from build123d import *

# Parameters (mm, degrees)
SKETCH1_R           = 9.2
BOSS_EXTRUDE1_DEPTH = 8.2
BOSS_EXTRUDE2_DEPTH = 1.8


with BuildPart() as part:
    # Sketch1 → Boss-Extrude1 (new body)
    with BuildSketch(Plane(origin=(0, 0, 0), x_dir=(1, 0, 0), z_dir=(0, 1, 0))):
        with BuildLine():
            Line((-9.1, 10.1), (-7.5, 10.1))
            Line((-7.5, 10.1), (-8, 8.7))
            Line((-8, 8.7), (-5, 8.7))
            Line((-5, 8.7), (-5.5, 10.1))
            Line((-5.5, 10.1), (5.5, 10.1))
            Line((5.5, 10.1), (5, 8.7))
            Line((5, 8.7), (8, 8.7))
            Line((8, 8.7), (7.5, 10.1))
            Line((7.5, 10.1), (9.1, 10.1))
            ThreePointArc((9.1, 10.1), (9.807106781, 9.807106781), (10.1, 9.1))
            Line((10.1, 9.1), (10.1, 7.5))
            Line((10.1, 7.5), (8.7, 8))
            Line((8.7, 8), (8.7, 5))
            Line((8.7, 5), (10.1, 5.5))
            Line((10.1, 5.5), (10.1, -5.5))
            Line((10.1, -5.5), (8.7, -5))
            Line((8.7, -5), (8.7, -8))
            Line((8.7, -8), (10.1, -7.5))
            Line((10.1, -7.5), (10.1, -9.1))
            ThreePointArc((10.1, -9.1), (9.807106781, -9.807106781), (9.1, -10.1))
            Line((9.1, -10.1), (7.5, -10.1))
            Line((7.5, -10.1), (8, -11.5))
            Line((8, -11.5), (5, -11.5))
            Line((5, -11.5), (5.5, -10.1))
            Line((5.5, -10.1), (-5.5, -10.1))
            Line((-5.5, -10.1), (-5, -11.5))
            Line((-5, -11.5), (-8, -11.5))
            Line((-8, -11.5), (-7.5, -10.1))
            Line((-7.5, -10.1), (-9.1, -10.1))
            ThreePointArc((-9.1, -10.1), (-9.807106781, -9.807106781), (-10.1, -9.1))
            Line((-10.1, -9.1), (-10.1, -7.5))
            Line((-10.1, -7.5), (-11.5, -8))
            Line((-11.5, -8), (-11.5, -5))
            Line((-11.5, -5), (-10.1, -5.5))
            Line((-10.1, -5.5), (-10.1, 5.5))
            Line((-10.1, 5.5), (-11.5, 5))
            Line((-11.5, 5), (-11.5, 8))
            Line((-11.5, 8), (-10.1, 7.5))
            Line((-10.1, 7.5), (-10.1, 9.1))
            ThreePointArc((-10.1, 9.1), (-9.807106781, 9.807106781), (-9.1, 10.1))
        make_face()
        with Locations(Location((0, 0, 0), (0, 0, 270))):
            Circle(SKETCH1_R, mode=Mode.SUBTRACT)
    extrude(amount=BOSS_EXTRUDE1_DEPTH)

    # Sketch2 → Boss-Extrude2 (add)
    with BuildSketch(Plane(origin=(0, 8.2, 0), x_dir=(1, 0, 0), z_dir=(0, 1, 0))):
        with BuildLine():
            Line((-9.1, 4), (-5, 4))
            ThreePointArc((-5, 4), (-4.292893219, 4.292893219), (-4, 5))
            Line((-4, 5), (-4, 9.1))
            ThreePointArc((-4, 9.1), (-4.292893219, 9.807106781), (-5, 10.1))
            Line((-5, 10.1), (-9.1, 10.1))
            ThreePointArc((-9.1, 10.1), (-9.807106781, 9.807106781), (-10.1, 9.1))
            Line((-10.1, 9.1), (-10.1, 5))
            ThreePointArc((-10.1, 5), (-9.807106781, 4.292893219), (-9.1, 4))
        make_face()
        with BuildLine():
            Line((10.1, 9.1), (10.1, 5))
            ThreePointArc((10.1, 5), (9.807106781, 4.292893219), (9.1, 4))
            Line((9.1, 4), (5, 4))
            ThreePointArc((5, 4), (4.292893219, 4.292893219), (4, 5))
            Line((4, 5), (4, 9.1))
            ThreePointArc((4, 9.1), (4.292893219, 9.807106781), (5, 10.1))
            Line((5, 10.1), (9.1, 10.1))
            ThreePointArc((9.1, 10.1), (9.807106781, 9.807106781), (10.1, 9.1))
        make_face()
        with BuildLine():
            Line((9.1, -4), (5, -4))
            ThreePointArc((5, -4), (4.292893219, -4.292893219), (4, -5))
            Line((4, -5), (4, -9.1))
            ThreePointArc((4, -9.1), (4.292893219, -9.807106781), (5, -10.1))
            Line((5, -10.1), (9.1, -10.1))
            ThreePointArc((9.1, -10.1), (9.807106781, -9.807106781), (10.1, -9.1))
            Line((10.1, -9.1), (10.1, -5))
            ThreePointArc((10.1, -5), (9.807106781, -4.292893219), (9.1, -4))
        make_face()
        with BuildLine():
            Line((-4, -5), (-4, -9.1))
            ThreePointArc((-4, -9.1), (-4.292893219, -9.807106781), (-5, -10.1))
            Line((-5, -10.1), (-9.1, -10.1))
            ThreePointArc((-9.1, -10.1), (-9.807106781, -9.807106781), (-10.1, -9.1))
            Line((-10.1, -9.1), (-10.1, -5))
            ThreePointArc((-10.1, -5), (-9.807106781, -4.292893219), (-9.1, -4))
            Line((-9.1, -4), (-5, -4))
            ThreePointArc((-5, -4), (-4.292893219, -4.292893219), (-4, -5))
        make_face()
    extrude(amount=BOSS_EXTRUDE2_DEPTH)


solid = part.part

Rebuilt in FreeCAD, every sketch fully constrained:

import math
import FreeCAD as App
import Part
import Sketcher
from FreeCAD import Vector

doc = App.newDocument("Part")
body = doc.addObject("PartDesign::Body", "Body")

# Sketch on XZ plane
sketch1 = body.newObject("Sketcher::SketchObject", "Sketch")
sketch1.AttachmentSupport = (doc.getObject("XZ_Plane"), [""])
sketch1.MapMode = "FlatFace"
sketch1.addGeometry(Part.LineSegment(Vector(-7.5, -10.1, 0), Vector(-9.1, -10.1, 0)), False)
sketch1.addGeometry(Part.ArcOfCircle(Part.Circle(Vector(-9.1, -9.1, 0), Vector(0, 0, 1), 1), math.radians(-180), math.radians(-90)), False)
sketch1.addGeometry(Part.LineSegment(Vector(-10.1, -9.1, 0), Vector(-10.1, -7.5, 0)), False)
sketch1.addGeometry(Part.LineSegment(Vector(-10.1, -7.5, 0), Vector(-11.5, -8, 0)), False)
sketch1.addGeometry(Part.LineSegment(Vector(-11.5, -8, 0), Vector(-11.5, -5, 0)), False)
sketch1.addGeometry(Part.LineSegment(Vector(-11.5, -5, 0), Vector(-10.1, -5.5, 0)), False)
sketch1.addGeometry(Part.LineSegment(Vector(-10.1, -5.5, 0), Vector(-10.1, 5.5, 0)), False)
sketch1.addGeometry(Part.LineSegment(Vector(-10.1, 5.5, 0), Vector(-11.5, 5, 0)), False)
sketch1.addGeometry(Part.LineSegment(Vector(-11.5, 5, 0), Vector(-11.5, 8, 0)), False)
sketch1.addGeometry(Part.LineSegment(Vector(-11.5, 8, 0), Vector(-10.1, 7.5, 0)), False)
sketch1.addGeometry(Part.LineSegment(Vector(-10.1, 7.5, 0), Vector(-10.1, 9.1, 0)), False)
sketch1.addGeometry(Part.ArcOfCircle(Part.Circle(Vector(-9.1, 9.1, 0), Vector(0, 0, 1), 1), math.radians(90), math.radians(180)), False)
sketch1.addGeometry(Part.LineSegment(Vector(-9.1, 10.1, 0), Vector(-7.5, 10.1, 0)), False)
sketch1.addGeometry(Part.LineSegment(Vector(-7.5, 10.1, 0), Vector(-8, 11.5, 0)), False)
sketch1.addGeometry(Part.LineSegment(Vector(-8, 11.5, 0), Vector(-5, 11.5, 0)), False)
sketch1.addGeometry(Part.LineSegment(Vector(-5, 11.5, 0), Vector(-5.5, 10.1, 0)), False)
sketch1.addGeometry(Part.LineSegment(Vector(-5.5, 10.1, 0), Vector(5.5, 10.1, 0)), False)
sketch1.addGeometry(Part.LineSegment(Vector(5.5, 10.1, 0), Vector(5, 11.5, 0)), False)
sketch1.addGeometry(Part.LineSegment(Vector(5, 11.5, 0), Vector(8, 11.5, 0)), False)
sketch1.addGeometry(Part.LineSegment(Vector(8, 11.5, 0), Vector(7.5, 10.1, 0)), False)
sketch1.addGeometry(Part.LineSegment(Vector(7.5, 10.1, 0), Vector(9.1, 10.1, 0)), False)
sketch1.addGeometry(Part.ArcOfCircle(Part.Circle(Vector(9.1, 9.1, 0), Vector(0, 0, 1), 1), math.radians(0), math.radians(90)), False)
sketch1.addGeometry(Part.LineSegment(Vector(10.1, 9.1, 0), Vector(10.1, 7.5, 0)), False)
sketch1.addGeometry(Part.LineSegment(Vector(10.1, 7.5, 0), Vector(8.7, 8, 0)), False)
sketch1.addGeometry(Part.LineSegment(Vector(8.7, 8, 0), Vector(8.7, 5, 0)), False)
sketch1.addGeometry(Part.LineSegment(Vector(8.7, 5, 0), Vector(10.1, 5.5, 0)), False)
sketch1.addGeometry(Part.LineSegment(Vector(10.1, 5.5, 0), Vector(10.1, -5.5, 0)), False)
sketch1.addGeometry(Part.LineSegment(Vector(10.1, -5.5, 0), Vector(8.7, -5, 0)), False)
sketch1.addGeometry(Part.LineSegment(Vector(8.7, -5, 0), Vector(8.7, -8, 0)), False)
sketch1.addGeometry(Part.LineSegment(Vector(8.7, -8, 0), Vector(10.1, -7.5, 0)), False)
sketch1.addGeometry(Part.LineSegment(Vector(10.1, -7.5, 0), Vector(10.1, -9.1, 0)), False)
sketch1.addGeometry(Part.ArcOfCircle(Part.Circle(Vector(9.1, -9.1, 0), Vector(0, 0, 1), 1), math.radians(-90), math.radians(0)), False)
sketch1.addGeometry(Part.LineSegment(Vector(9.1, -10.1, 0), Vector(7.5, -10.1, 0)), False)
sketch1.addGeometry(Part.LineSegment(Vector(7.5, -10.1, 0), Vector(8, -8.7, 0)), False)
sketch1.addGeometry(Part.LineSegment(Vector(8, -8.7, 0), Vector(5, -8.7, 0)), False)
sketch1.addGeometry(Part.LineSegment(Vector(5, -8.7, 0), Vector(5.5, -10.1, 0)), False)
sketch1.addGeometry(Part.LineSegment(Vector(5.5, -10.1, 0), Vector(-5.5, -10.1, 0)), False)
sketch1.addGeometry(Part.LineSegment(Vector(-5.5, -10.1, 0), Vector(-5, -8.7, 0)), False)
sketch1.addGeometry(Part.LineSegment(Vector(-5, -8.7, 0), Vector(-8, -8.7, 0)), False)
sketch1.addGeometry(Part.LineSegment(Vector(-8, -8.7, 0), Vector(-7.5, -10.1, 0)), False)
sketch1.addGeometry(Part.Circle(Vector(0, 0, 0), Vector(0, 0, 1), 9.2), False)
sketch1.addConstraint(Sketcher.Constraint("Tangent", 0, 2, 1, 2))
sketch1.addConstraint(Sketcher.Constraint("Tangent", 1, 1, 2, 1))
sketch1.addConstraint(Sketcher.Constraint("Coincident", 2, 2, 3, 1))
sketch1.addConstraint(Sketcher.Constraint("Coincident", 3, 2, 4, 1))
sketch1.addConstraint(Sketcher.Constraint("Coincident", 4, 2, 5, 1))
sketch1.addConstraint(Sketcher.Constraint("Coincident", 5, 2, 6, 1))
sketch1.addConstraint(Sketcher.Constraint("Coincident", 6, 2, 7, 1))
sketch1.addConstraint(Sketcher.Constraint("Coincident", 7, 2, 8, 1))
sketch1.addConstraint(Sketcher.Constraint("Coincident", 8, 2, 9, 1))
sketch1.addConstraint(Sketcher.Constraint("Coincident", 9, 2, 10, 1))
sketch1.addConstraint(Sketcher.Constraint("Tangent", 10, 2, 11, 2))
sketch1.addConstraint(Sketcher.Constraint("Tangent", 11, 1, 12, 1))
sketch1.addConstraint(Sketcher.Constraint("Coincident", 12, 2, 13, 1))
sketch1.addConstraint(Sketcher.Constraint("Coincident", 13, 2, 14, 1))
sketch1.addConstraint(Sketcher.Constraint("Coincident", 14, 2, 15, 1))
sketch1.addConstraint(Sketcher.Constraint("Coincident", 15, 2, 16, 1))
sketch1.addConstraint(Sketcher.Constraint("Coincident", 16, 2, 17, 1))
sketch1.addConstraint(Sketcher.Constraint("Coincident", 17, 2, 18, 1))
sketch1.addConstraint(Sketcher.Constraint("Coincident", 18, 2, 19, 1))
sketch1.addConstraint(Sketcher.Constraint("Coincident", 19, 2, 20, 1))
sketch1.addConstraint(Sketcher.Constraint("Tangent", 20, 2, 21, 2))
sketch1.addConstraint(Sketcher.Constraint("Tangent", 21, 1, 22, 1))
sketch1.addConstraint(Sketcher.Constraint("Coincident", 22, 2, 23, 1))
sketch1.addConstraint(Sketcher.Constraint("Coincident", 23, 2, 24, 1))
sketch1.addConstraint(Sketcher.Constraint("Coincident", 24, 2, 25, 1))
sketch1.addConstraint(Sketcher.Constraint("Coincident", 25, 2, 26, 1))
sketch1.addConstraint(Sketcher.Constraint("Coincident", 26, 2, 27, 1))
sketch1.addConstraint(Sketcher.Constraint("Coincident", 27, 2, 28, 1))
sketch1.addConstraint(Sketcher.Constraint("Coincident", 28, 2, 29, 1))
sketch1.addConstraint(Sketcher.Constraint("Coincident", 29, 2, 30, 1))
sketch1.addConstraint(Sketcher.Constraint("Tangent", 30, 2, 31, 2))
sketch1.addConstraint(Sketcher.Constraint("Tangent", 31, 1, 32, 1))
sketch1.addConstraint(Sketcher.Constraint("Coincident", 32, 2, 33, 1))
sketch1.addConstraint(Sketcher.Constraint("Coincident", 33, 2, 34, 1))
sketch1.addConstraint(Sketcher.Constraint("Coincident", 34, 2, 35, 1))
sketch1.addConstraint(Sketcher.Constraint("Coincident", 35, 2, 36, 1))
sketch1.addConstraint(Sketcher.Constraint("Coincident", 36, 2, 37, 1))
sketch1.addConstraint(Sketcher.Constraint("Coincident", 37, 2, 38, 1))
sketch1.addConstraint(Sketcher.Constraint("Coincident", 38, 2, 39, 1))
sketch1.addConstraint(Sketcher.Constraint("Coincident", 39, 2, 0, 1))
sketch1.addConstraint(Sketcher.Constraint("Horizontal", 0))
sketch1.addConstraint(Sketcher.Constraint("Vertical", 2))
sketch1.addConstraint(Sketcher.Constraint("Vertical", 4))
sketch1.addConstraint(Sketcher.Constraint("Vertical", 6))
sketch1.addConstraint(Sketcher.Constraint("Vertical", 8))
sketch1.addConstraint(Sketcher.Constraint("Vertical", 10))
sketch1.addConstraint(Sketcher.Constraint("Horizontal", 12))
sketch1.addConstraint(Sketcher.Constraint("Horizontal", 14))
sketch1.addConstraint(Sketcher.Constraint("Horizontal", 16))
sketch1.addConstraint(Sketcher.Constraint("Horizontal", 18))
sketch1.addConstraint(Sketcher.Constraint("Horizontal", 20))
sketch1.addConstraint(Sketcher.Constraint("Vertical", 22))
sketch1.addConstraint(Sketcher.Constraint("Vertical", 24))
sketch1.addConstraint(Sketcher.Constraint("Vertical", 26))
sketch1.addConstraint(Sketcher.Constraint("Vertical", 28))
sketch1.addConstraint(Sketcher.Constraint("Vertical", 30))
sketch1.addConstraint(Sketcher.Constraint("Horizontal", 32))
sketch1.addConstraint(Sketcher.Constraint("Horizontal", 34))
sketch1.addConstraint(Sketcher.Constraint("Horizontal", 36))
sketch1.addConstraint(Sketcher.Constraint("Horizontal", 38))
sketch1.addConstraint(Sketcher.Constraint("Coincident", 40, 3, -1, 1))
sketch1.addConstraint(Sketcher.Constraint("Equal", 1, 11))
sketch1.addConstraint(Sketcher.Constraint("Equal", 11, 21))
sketch1.addConstraint(Sketcher.Constraint("Equal", 21, 31))
sketch1.addConstraint(Sketcher.Constraint("Symmetric", 1, 3, 21, 3, -1, 1))
sketch1.addConstraint(Sketcher.Constraint("Symmetric", 11, 3, 31, 3, -1, 1))
sketch1.addConstraint(Sketcher.Constraint("Symmetric", 5, 2, 25, 2, -1, 1))
sketch1.addConstraint(Sketcher.Constraint("Symmetric", 15, 2, 35, 2, -1, 1))
sketch1.addConstraint(Sketcher.Constraint("Symmetric", 11, 3, 21, 3, -2))
sketch1.addConstraint(Sketcher.Constraint("Symmetric", 14, 2, 17, 2, -2))
sketch1.addConstraint(Sketcher.Constraint("Symmetric", 34, 2, 37, 2, -2))
sketch1.addConstraint(Sketcher.Constraint("Symmetric", 4, 2, 7, 2, -1))
sketch1.addConstraint(Sketcher.Constraint("Symmetric", 24, 2, 27, 2, -1))
sketch1.addConstraint(Sketcher.Constraint("Parallel", 3, 7))
sketch1.addConstraint(Sketcher.Constraint("Parallel", 5, 9))
sketch1.addConstraint(Sketcher.Constraint("Perpendicular", 7, 13))
sketch1.addConstraint(Sketcher.Constraint("Perpendicular", 9, 15))
sketch1.addConstraint(Sketcher.Constraint("Parallel", 13, 17))
sketch1.addConstraint(Sketcher.Constraint("Parallel", 15, 19))
sketch1.addConstraint(Sketcher.Constraint("Perpendicular", 19, 23))
sketch1.addConstraint(Sketcher.Constraint("Perpendicular", 17, 25))
sketch1.addConstraint(Sketcher.Constraint("Parallel", 23, 27))
sketch1.addConstraint(Sketcher.Constraint("Parallel", 25, 29))
sketch1.addConstraint(Sketcher.Constraint("Perpendicular", 27, 33))
sketch1.addConstraint(Sketcher.Constraint("Perpendicular", 29, 35))
sketch1.addConstraint(Sketcher.Constraint("Parallel", 33, 37))
sketch1.addConstraint(Sketcher.Constraint("Parallel", 35, 39))
sketch1.addConstraint(Sketcher.Constraint("Horizontal", 12, 2, 15, 2))
sketch1.addConstraint(Sketcher.Constraint("Horizontal", 9, 2, 22, 2))
sketch1.addConstraint(Sketcher.Constraint("Horizontal", 8, 2, 23, 2))
sketch1.addConstraint(Sketcher.Constraint("Horizontal", 7, 2, 24, 2))
sketch1.addConstraint(Sketcher.Constraint("Horizontal", 6, 2, 25, 2))
sketch1.addConstraint(Sketcher.Constraint("Horizontal", 3, 2, 28, 2))
sketch1.addConstraint(Sketcher.Constraint("Vertical", 19, 2, 32, 2))
sketch1.addConstraint(Sketcher.Constraint("Vertical", 18, 2, 33, 2))
sketch1.addConstraint(Sketcher.Constraint("Vertical", 13, 2, 38, 2))
sketch1.addConstraint(Sketcher.Constraint("Equal", 14, 18))
sketch1.addConstraint(Sketcher.Constraint("Equal", 32, 2))
sketch1.addConstraint(Sketcher.Constraint("Equal", 38, 4))
sketch1.addConstraint(Sketcher.Constraint("Equal", 36, 6))
sketch1.addConstraint(Sketcher.Constraint("Equal", 4, 8))
sketch1.addConstraint(Sketcher.Constraint("Equal", 9, 13))
sketch1.addConstraint(Sketcher.Constraint("Radius", 1, 1.0))
sketch1.addConstraint(Sketcher.Constraint("Diameter", 40, 18.4))
sketch1.addConstraint(Sketcher.Constraint("DistanceX", 14, 1, 14, 2, 3.0))
sketch1.addConstraint(Sketcher.Constraint("DistanceX", 16, 1, 16, 2, 11.0))
sketch1.addConstraint(Sketcher.Constraint("DistanceX", 0, 2, 0, 1, 1.6))
sketch1.addConstraint(Sketcher.Constraint("DistanceY", 3, 2, -1, 1, 8.0))
sketch1.addConstraint(Sketcher.Constraint("DistanceX", 8, 2, 12, 2, 4.0))
pad1 = body.newObject("PartDesign::Pad", "Pad")
pad1.Profile = sketch1
pad1.Length = 8.2
pad1.Reversed = True

# Sketch on XZ plane
sketch2 = body.newObject("Sketcher::SketchObject", "Sketch001")
sketch2.AttachmentSupport = (doc.getObject("XZ_Plane"), [""])
sketch2.MapMode = "FlatFace"
sketch2.AttachmentOffset = App.Placement(Vector(0, 0, -8.2), App.Rotation())
sketch2.addGeometry(Part.LineSegment(Vector(-9.1, -4, 0), Vector(-5, -4, 0)), False)
sketch2.addGeometry(Part.ArcOfCircle(Part.Circle(Vector(-5, -5, 0), Vector(0, 0, 1), 1), math.radians(0), math.radians(90)), False)
sketch2.addGeometry(Part.LineSegment(Vector(-4, -5, 0), Vector(-4, -9.1, 0)), False)
sketch2.addGeometry(Part.ArcOfCircle(Part.Circle(Vector(-5, -9.1, 0), Vector(0, 0, 1), 1), math.radians(-90), math.radians(0)), False)
sketch2.addGeometry(Part.LineSegment(Vector(-5, -10.1, 0), Vector(-9.1, -10.1, 0)), False)
sketch2.addGeometry(Part.ArcOfCircle(Part.Circle(Vector(-9.1, -9.1, 0), Vector(0, 0, 1), 1), math.radians(-180), math.radians(-90)), False)
sketch2.addGeometry(Part.LineSegment(Vector(-10.1, -9.1, 0), Vector(-10.1, -5, 0)), False)
sketch2.addGeometry(Part.ArcOfCircle(Part.Circle(Vector(-9.1, -5, 0), Vector(0, 0, 1), 1), math.radians(90), math.radians(180)), False)
sketch2.addGeometry(Part.LineSegment(Vector(10.1, -5, 0), Vector(10.1, -9.1, 0)), False)
sketch2.addGeometry(Part.ArcOfCircle(Part.Circle(Vector(9.1, -9.1, 0), Vector(0, 0, 1), 1), math.radians(-90), math.radians(0)), False)
sketch2.addGeometry(Part.LineSegment(Vector(9.1, -10.1, 0), Vector(5, -10.1, 0)), False)
sketch2.addGeometry(Part.ArcOfCircle(Part.Circle(Vector(5, -9.1, 0), Vector(0, 0, 1), 1), math.radians(-180), math.radians(-90)), False)
sketch2.addGeometry(Part.LineSegment(Vector(4, -9.1, 0), Vector(4, -5, 0)), False)
sketch2.addGeometry(Part.ArcOfCircle(Part.Circle(Vector(5, -5, 0), Vector(0, 0, 1), 1), math.radians(90), math.radians(180)), False)
sketch2.addGeometry(Part.LineSegment(Vector(5, -4, 0), Vector(9.1, -4, 0)), False)
sketch2.addGeometry(Part.ArcOfCircle(Part.Circle(Vector(9.1, -5, 0), Vector(0, 0, 1), 1), math.radians(0), math.radians(90)), False)
sketch2.addGeometry(Part.LineSegment(Vector(9.1, 4, 0), Vector(5, 4, 0)), False)
sketch2.addGeometry(Part.ArcOfCircle(Part.Circle(Vector(5, 5, 0), Vector(0, 0, 1), 1), math.radians(-180), math.radians(-90)), False)
sketch2.addGeometry(Part.LineSegment(Vector(4, 5, 0), Vector(4, 9.1, 0)), False)
sketch2.addGeometry(Part.ArcOfCircle(Part.Circle(Vector(5, 9.1, 0), Vector(0, 0, 1), 1), math.radians(90), math.radians(180)), False)
sketch2.addGeometry(Part.LineSegment(Vector(5, 10.1, 0), Vector(9.1, 10.1, 0)), False)
sketch2.addGeometry(Part.ArcOfCircle(Part.Circle(Vector(9.1, 9.1, 0), Vector(0, 0, 1), 1), math.radians(0), math.radians(90)), False)
sketch2.addGeometry(Part.LineSegment(Vector(10.1, 9.1, 0), Vector(10.1, 5, 0)), False)
sketch2.addGeometry(Part.ArcOfCircle(Part.Circle(Vector(9.1, 5, 0), Vector(0, 0, 1), 1), math.radians(-90), math.radians(0)), False)
sketch2.addGeometry(Part.LineSegment(Vector(-4, 9.1, 0), Vector(-4, 5, 0)), False)
sketch2.addGeometry(Part.ArcOfCircle(Part.Circle(Vector(-5, 5, 0), Vector(0, 0, 1), 1), math.radians(-90), math.radians(0)), False)
sketch2.addGeometry(Part.LineSegment(Vector(-5, 4, 0), Vector(-9.1, 4, 0)), False)
sketch2.addGeometry(Part.ArcOfCircle(Part.Circle(Vector(-9.1, 5, 0), Vector(0, 0, 1), 1), math.radians(-180), math.radians(-90)), False)
sketch2.addGeometry(Part.LineSegment(Vector(-10.1, 5, 0), Vector(-10.1, 9.1, 0)), False)
sketch2.addGeometry(Part.ArcOfCircle(Part.Circle(Vector(-9.1, 9.1, 0), Vector(0, 0, 1), 1), math.radians(90), math.radians(180)), False)
sketch2.addGeometry(Part.LineSegment(Vector(-9.1, 10.1, 0), Vector(-5, 10.1, 0)), False)
sketch2.addGeometry(Part.ArcOfCircle(Part.Circle(Vector(-5, 9.1, 0), Vector(0, 0, 1), 1), math.radians(0), math.radians(90)), False)
sketch2.addConstraint(Sketcher.Constraint("Tangent", 0, 2, 1, 2))
sketch2.addConstraint(Sketcher.Constraint("Tangent", 1, 1, 2, 1))
sketch2.addConstraint(Sketcher.Constraint("Tangent", 2, 2, 3, 2))
sketch2.addConstraint(Sketcher.Constraint("Tangent", 3, 1, 4, 1))
sketch2.addConstraint(Sketcher.Constraint("Tangent", 4, 2, 5, 2))
sketch2.addConstraint(Sketcher.Constraint("Tangent", 5, 1, 6, 1))
sketch2.addConstraint(Sketcher.Constraint("Tangent", 6, 2, 7, 2))
sketch2.addConstraint(Sketcher.Constraint("Tangent", 7, 1, 0, 1))
sketch2.addConstraint(Sketcher.Constraint("Tangent", 8, 2, 9, 2))
sketch2.addConstraint(Sketcher.Constraint("Tangent", 9, 1, 10, 1))
sketch2.addConstraint(Sketcher.Constraint("Tangent", 10, 2, 11, 2))
sketch2.addConstraint(Sketcher.Constraint("Tangent", 11, 1, 12, 1))
sketch2.addConstraint(Sketcher.Constraint("Tangent", 12, 2, 13, 2))
sketch2.addConstraint(Sketcher.Constraint("Tangent", 13, 1, 14, 1))
sketch2.addConstraint(Sketcher.Constraint("Tangent", 14, 2, 15, 2))
sketch2.addConstraint(Sketcher.Constraint("Tangent", 15, 1, 8, 1))
sketch2.addConstraint(Sketcher.Constraint("Tangent", 16, 2, 17, 2))
sketch2.addConstraint(Sketcher.Constraint("Tangent", 17, 1, 18, 1))
sketch2.addConstraint(Sketcher.Constraint("Tangent", 18, 2, 19, 2))
sketch2.addConstraint(Sketcher.Constraint("Tangent", 19, 1, 20, 1))
sketch2.addConstraint(Sketcher.Constraint("Tangent", 20, 2, 21, 2))
sketch2.addConstraint(Sketcher.Constraint("Tangent", 21, 1, 22, 1))
sketch2.addConstraint(Sketcher.Constraint("Tangent", 22, 2, 23, 2))
sketch2.addConstraint(Sketcher.Constraint("Tangent", 23, 1, 16, 1))
sketch2.addConstraint(Sketcher.Constraint("Tangent", 24, 2, 25, 2))
sketch2.addConstraint(Sketcher.Constraint("Tangent", 25, 1, 26, 1))
sketch2.addConstraint(Sketcher.Constraint("Tangent", 26, 2, 27, 2))
sketch2.addConstraint(Sketcher.Constraint("Tangent", 27, 1, 28, 1))
sketch2.addConstraint(Sketcher.Constraint("Tangent", 28, 2, 29, 2))
sketch2.addConstraint(Sketcher.Constraint("Tangent", 29, 1, 30, 1))
sketch2.addConstraint(Sketcher.Constraint("Tangent", 30, 2, 31, 2))
sketch2.addConstraint(Sketcher.Constraint("Tangent", 31, 1, 24, 1))
sketch2.addConstraint(Sketcher.Constraint("Horizontal", 0))
sketch2.addConstraint(Sketcher.Constraint("Vertical", 2))
sketch2.addConstraint(Sketcher.Constraint("Horizontal", 4))
sketch2.addConstraint(Sketcher.Constraint("Vertical", 6))
sketch2.addConstraint(Sketcher.Constraint("Vertical", 8))
sketch2.addConstraint(Sketcher.Constraint("Horizontal", 10))
sketch2.addConstraint(Sketcher.Constraint("Vertical", 12))
sketch2.addConstraint(Sketcher.Constraint("Horizontal", 14))
sketch2.addConstraint(Sketcher.Constraint("Horizontal", 16))
sketch2.addConstraint(Sketcher.Constraint("Vertical", 18))
sketch2.addConstraint(Sketcher.Constraint("Horizontal", 20))
sketch2.addConstraint(Sketcher.Constraint("Vertical", 22))
sketch2.addConstraint(Sketcher.Constraint("Vertical", 24))
sketch2.addConstraint(Sketcher.Constraint("Horizontal", 26))
sketch2.addConstraint(Sketcher.Constraint("Vertical", 28))
sketch2.addConstraint(Sketcher.Constraint("Horizontal", 30))
sketch2.addConstraint(Sketcher.Constraint("Equal", 1, 3))
sketch2.addConstraint(Sketcher.Constraint("Equal", 3, 5))
sketch2.addConstraint(Sketcher.Constraint("Equal", 5, 7))
sketch2.addConstraint(Sketcher.Constraint("Equal", 7, 9))
sketch2.addConstraint(Sketcher.Constraint("Equal", 9, 11))
sketch2.addConstraint(Sketcher.Constraint("Equal", 11, 13))
sketch2.addConstraint(Sketcher.Constraint("Equal", 13, 15))
sketch2.addConstraint(Sketcher.Constraint("Equal", 15, 17))
sketch2.addConstraint(Sketcher.Constraint("Equal", 17, 19))
sketch2.addConstraint(Sketcher.Constraint("Equal", 19, 21))
sketch2.addConstraint(Sketcher.Constraint("Equal", 21, 23))
sketch2.addConstraint(Sketcher.Constraint("Equal", 23, 25))
sketch2.addConstraint(Sketcher.Constraint("Equal", 25, 27))
sketch2.addConstraint(Sketcher.Constraint("Equal", 27, 29))
sketch2.addConstraint(Sketcher.Constraint("Equal", 29, 31))
sketch2.addConstraint(Sketcher.Constraint("Symmetric", 1, 3, 17, 3, -1, 1))
sketch2.addConstraint(Sketcher.Constraint("Symmetric", 5, 3, 21, 3, -1, 1))
sketch2.addConstraint(Sketcher.Constraint("Symmetric", 13, 3, 25, 3, -1, 1))
sketch2.addConstraint(Sketcher.Constraint("Symmetric", 9, 3, 29, 3, -1, 1))
sketch2.addConstraint(Sketcher.Constraint("Symmetric", 5, 3, 9, 3, -2))
sketch2.addConstraint(Sketcher.Constraint("Symmetric", 1, 3, 13, 3, -2))
sketch2.addConstraint(Sketcher.Constraint("Equal", 30, 2))
sketch2.addConstraint(Sketcher.Constraint("Radius", 1, 1.0))
sketch2.addConstraint(Sketcher.Constraint("DistanceX", 0, 1, 0, 2, 4.1))
sketch2.addConstraint(Sketcher.Constraint("DistanceX", 1, 3, -1, 1, 5.0))
sketch2.addConstraint(Sketcher.Constraint("DistanceY", 1, 3, -1, 1, 5.0))
pad2 = body.newObject("PartDesign::Pad", "Pad001")
pad2.Profile = sketch2
pad2.Length = 1.8
pad2.Reversed = True

doc.recompute()
